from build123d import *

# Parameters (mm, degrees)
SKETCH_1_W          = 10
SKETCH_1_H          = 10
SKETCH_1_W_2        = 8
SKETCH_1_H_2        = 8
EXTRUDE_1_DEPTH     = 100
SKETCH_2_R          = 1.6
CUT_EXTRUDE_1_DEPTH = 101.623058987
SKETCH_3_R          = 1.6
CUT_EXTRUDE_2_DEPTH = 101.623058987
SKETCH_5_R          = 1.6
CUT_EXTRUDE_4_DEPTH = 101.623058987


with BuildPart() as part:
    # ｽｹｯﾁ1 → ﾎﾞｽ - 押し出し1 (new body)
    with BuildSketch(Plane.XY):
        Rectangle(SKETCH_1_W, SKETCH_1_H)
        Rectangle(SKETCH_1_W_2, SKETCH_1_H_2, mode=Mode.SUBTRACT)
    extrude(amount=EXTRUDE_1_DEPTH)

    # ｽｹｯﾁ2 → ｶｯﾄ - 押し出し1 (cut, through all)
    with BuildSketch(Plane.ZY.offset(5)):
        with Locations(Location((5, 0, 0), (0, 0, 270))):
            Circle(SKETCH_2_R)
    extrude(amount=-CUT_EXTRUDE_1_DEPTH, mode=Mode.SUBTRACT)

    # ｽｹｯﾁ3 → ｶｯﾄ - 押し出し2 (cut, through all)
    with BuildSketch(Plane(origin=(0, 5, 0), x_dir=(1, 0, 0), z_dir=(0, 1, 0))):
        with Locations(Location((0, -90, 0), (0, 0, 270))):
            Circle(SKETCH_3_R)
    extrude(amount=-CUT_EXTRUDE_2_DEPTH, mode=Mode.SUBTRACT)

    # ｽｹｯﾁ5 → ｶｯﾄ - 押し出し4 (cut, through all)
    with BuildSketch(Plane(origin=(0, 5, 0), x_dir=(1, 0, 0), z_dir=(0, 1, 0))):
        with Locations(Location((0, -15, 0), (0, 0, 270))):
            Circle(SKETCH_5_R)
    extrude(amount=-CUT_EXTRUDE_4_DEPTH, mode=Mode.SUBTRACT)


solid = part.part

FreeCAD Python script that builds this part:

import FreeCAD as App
import Part
import Sketcher


def add_polygon(sketch, points):
    """Adds a closed chain of lines whose ends are joined by coincident constraints."""
    first, n = sketch.GeometryCount, len(points)
    for a, b in zip(points, points[1:] + points[:1]):
        sketch.addGeometry(Part.LineSegment(App.Vector(*a, 0), App.Vector(*b, 0)), False)
    for i in range(n):
        sketch.addConstraint(Sketcher.Constraint("Coincident", first + i, 2, first + (i + 1) % n, 1))

doc = App.newDocument("Part")
body = doc.addObject("PartDesign::Body", "Body")

sketch1 = body.newObject("Sketcher::SketchObject", "Sketch")
sketch1.AttachmentSupport = (doc.getObject("XY_Plane"), [""])
sketch1.MapMode = "FlatFace"
add_polygon(sketch1, [(-5, 5), (-5, -5), (5, -5), (5, 5)])
add_polygon(sketch1, [(4, -4), (-4, -4), (-4, 4), (4, 4)])
sketch1.addConstraint([
    Sketcher.Constraint("Vertical", 0),
    Sketcher.Constraint("Horizontal", 1),
    Sketcher.Constraint("Vertical", 2),
    Sketcher.Constraint("Horizontal", 3),
    Sketcher.Constraint("Horizontal", 4),
    Sketcher.Constraint("Vertical", 5),
    Sketcher.Constraint("Horizontal", 6),
    Sketcher.Constraint("Vertical", 7),
    Sketcher.Constraint("Symmetric", 0, 2, 2, 2, -1, 1),
    Sketcher.Constraint("Symmetric", 4, 2, 6, 2, -1, 1),
    Sketcher.Constraint("Equal", 3, 0),
    Sketcher.Constraint("Equal", 6, 5),
    Sketcher.Constraint("DistanceX", 1, 1, 1, 2, 10.0),
    Sketcher.Constraint("DistanceX", 4, 2, 4, 1, 8.0),
])
pad1 = body.newObject("PartDesign::Pad", "Pad")
pad1.Profile = sketch1
pad1.Length = 100

sketch2 = body.newObject("Sketcher::SketchObject", "Sketch001")
sketch2.AttachmentSupport = (doc.getObject("YZ_Plane"), [""])
sketch2.MapMode = "FlatFace"
sketch2.AttachmentOffset = App.Placement(App.Vector(0, 0, -5), App.Rotation())
sketch2.addGeometry(Part.Circle(App.Vector(0, 5, 0), App.Vector(0, 0, 1), 1.6), False)
sketch2.addConstraint([
    Sketcher.Constraint("PointOnObject", 0, 3, -2),
    Sketcher.Constraint("Diameter", 0, 3.2),
    Sketcher.Constraint("DistanceY", -1, 1, 0, 3, 5.0),
])
pocket1 = body.newObject("PartDesign::Pocket", "Pocket")
pocket1.Profile = sketch2
pocket1.Type = "ThroughAll"
pocket1.Reversed = True

sketch3 = body.newObject("Sketcher::SketchObject", "Sketch002")
sketch3.AttachmentSupport = (doc.getObject("XZ_Plane"), [""])
sketch3.MapMode = "FlatFace"
sketch3.AttachmentOffset = App.Placement(App.Vector(0, 0, -5), App.Rotation())
sketch3.addGeometry(Part.Circle(App.Vector(0, 90, 0), App.Vector(0, 0, 1), 1.6), False)
sketch3.addConstraint([
    Sketcher.Constraint("PointOnObject", 0, 3, -2),
    Sketcher.Constraint("Diameter", 0, 3.2),
    Sketcher.Constraint("DistanceY", -1, 1, 0, 3, 90.0),
])
pocket2 = body.newObject("PartDesign::Pocket", "Pocket001")
pocket2.Profile = sketch3
pocket2.Type = "ThroughAll"
pocket2.Reversed = True

sketch4 = body.newObject("Sketcher::SketchObject", "Sketch003")
sketch4.AttachmentSupport = (doc.getObject("XZ_Plane"), [""])
sketch4.MapMode = "FlatFace"
sketch4.AttachmentOffset = App.Placement(App.Vector(0, 0, -5), App.Rotation())
sketch4.addGeometry(Part.Circle(App.Vector(0, 15, 0), App.Vector(0, 0, 1), 1.6), False)
sketch4.addConstraint([
    Sketcher.Constraint("PointOnObject", 0, 3, -2),
    Sketcher.Constraint("Diameter", 0, 3.2),
    Sketcher.Constraint("DistanceY", -1, 1, 0, 3, 15.0),
])
pocket3 = body.newObject("PartDesign::Pocket", "Pocket002")
pocket3.Profile = sketch4
pocket3.Type = "ThroughAll"
pocket3.Reversed = True

doc.recompute()
